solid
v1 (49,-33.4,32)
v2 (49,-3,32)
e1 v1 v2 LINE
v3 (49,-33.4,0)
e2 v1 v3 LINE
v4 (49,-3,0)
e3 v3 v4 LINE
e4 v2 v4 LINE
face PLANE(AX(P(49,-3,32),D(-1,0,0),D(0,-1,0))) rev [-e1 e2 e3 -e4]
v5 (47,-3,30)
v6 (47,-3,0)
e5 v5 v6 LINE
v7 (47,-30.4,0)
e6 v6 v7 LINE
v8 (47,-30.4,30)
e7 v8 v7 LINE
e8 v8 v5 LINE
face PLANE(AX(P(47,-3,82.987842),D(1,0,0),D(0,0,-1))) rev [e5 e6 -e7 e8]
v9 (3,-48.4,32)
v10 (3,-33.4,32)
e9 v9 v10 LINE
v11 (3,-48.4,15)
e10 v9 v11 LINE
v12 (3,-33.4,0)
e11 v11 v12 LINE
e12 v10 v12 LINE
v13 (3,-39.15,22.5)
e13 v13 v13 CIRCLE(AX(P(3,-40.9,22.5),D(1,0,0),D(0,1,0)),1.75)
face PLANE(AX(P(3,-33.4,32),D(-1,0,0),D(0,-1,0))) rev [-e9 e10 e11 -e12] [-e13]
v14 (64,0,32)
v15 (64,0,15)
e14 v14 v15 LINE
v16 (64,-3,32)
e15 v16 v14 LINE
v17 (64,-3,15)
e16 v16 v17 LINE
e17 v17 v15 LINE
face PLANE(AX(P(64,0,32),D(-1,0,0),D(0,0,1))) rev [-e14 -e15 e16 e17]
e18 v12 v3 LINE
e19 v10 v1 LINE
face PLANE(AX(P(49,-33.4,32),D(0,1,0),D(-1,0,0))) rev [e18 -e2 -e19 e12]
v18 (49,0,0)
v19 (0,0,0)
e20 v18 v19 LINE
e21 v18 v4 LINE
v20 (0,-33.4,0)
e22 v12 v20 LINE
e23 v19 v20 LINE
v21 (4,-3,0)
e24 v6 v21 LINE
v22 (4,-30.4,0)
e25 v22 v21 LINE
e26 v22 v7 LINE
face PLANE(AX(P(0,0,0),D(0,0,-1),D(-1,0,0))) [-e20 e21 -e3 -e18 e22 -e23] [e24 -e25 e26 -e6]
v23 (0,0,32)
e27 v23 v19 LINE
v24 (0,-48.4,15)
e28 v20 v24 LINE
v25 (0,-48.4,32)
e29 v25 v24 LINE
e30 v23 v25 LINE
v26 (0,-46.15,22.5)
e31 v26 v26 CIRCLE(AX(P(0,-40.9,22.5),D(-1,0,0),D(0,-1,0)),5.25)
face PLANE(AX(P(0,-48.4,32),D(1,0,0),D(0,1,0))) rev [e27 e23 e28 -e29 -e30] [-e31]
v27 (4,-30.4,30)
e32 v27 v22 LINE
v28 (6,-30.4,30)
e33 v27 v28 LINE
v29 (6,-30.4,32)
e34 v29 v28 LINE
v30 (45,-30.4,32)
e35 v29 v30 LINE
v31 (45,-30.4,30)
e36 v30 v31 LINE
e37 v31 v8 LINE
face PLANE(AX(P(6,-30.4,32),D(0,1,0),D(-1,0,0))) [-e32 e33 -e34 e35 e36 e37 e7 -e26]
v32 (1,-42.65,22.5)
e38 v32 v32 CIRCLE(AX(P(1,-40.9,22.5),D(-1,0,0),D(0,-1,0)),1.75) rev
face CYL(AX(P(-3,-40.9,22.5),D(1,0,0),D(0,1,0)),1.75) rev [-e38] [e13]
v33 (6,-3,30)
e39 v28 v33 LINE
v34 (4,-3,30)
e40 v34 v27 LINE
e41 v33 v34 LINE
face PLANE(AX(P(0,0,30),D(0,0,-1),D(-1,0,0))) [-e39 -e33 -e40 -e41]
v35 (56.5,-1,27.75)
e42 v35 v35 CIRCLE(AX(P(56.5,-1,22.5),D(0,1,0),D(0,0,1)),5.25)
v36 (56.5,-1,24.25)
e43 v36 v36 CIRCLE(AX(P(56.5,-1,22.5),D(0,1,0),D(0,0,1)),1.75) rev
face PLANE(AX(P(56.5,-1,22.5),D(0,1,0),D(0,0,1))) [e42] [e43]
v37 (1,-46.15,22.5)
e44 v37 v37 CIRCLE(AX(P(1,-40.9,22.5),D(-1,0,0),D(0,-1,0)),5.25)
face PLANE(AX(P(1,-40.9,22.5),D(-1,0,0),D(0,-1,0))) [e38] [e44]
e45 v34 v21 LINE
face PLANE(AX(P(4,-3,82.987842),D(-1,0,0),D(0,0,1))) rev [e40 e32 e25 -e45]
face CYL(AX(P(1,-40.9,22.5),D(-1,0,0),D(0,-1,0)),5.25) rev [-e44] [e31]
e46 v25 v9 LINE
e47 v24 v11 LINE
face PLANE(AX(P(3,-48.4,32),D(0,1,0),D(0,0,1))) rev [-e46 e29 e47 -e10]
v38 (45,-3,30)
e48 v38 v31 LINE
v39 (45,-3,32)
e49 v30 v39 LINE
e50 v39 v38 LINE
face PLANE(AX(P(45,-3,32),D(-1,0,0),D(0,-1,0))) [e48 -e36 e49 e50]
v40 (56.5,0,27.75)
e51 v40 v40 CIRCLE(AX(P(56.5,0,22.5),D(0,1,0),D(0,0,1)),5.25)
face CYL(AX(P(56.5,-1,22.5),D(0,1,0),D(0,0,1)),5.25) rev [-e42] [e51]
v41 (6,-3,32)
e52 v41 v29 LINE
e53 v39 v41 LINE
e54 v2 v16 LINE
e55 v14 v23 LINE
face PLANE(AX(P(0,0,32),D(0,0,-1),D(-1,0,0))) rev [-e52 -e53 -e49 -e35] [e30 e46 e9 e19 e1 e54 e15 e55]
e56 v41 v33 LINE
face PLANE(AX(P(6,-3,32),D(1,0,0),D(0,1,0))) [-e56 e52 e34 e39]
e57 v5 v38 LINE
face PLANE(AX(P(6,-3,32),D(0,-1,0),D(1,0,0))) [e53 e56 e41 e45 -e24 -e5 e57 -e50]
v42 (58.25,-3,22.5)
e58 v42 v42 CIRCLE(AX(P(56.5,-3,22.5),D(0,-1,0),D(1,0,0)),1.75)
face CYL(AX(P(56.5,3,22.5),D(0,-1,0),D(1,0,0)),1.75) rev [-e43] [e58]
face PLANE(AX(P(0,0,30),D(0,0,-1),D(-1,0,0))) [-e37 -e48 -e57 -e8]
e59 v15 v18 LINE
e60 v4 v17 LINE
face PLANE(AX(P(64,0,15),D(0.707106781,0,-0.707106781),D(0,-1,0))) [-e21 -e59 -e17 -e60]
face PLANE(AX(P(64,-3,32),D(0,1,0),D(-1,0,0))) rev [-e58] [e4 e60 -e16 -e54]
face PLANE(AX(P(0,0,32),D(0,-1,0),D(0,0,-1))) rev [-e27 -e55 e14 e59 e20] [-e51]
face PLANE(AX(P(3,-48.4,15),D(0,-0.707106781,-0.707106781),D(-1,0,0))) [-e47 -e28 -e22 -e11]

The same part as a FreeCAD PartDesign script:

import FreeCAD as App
import Part
import Sketcher


def edges_at(feature, points):
    """Names of the edges that pass closest to the given points."""
    edges = feature.Shape.Edges
    near = lambda p: min(range(len(edges)), key=lambda i: edges[i].distToShape(Part.Vertex(*p))[0])
    return sorted({f"Edge{near(p) + 1}" for p in points})

doc = App.newDocument("Part")
body = doc.addObject("PartDesign::Body", "Body")

sketch1 = body.newObject("Sketcher::SketchObject", "Sketch")
sketch1.AttachmentSupport = (doc.getObject("XY_Plane"), [""])
sketch1.MapMode = "FlatFace"
sketch1.addGeometry([
    Part.LineSegment(App.Vector(64, 0, 0), App.Vector(0, 0, 0)),
    Part.LineSegment(App.Vector(0, 0, 0), App.Vector(0, -48.4, 0)),
    Part.LineSegment(App.Vector(0, -48.4, 0), App.Vector(3, -48.4, 0)),
    Part.LineSegment(App.Vector(3, -48.4, 0), App.Vector(3, -33.4, 0)),
    Part.LineSegment(App.Vector(3, -33.4, 0), App.Vector(49, -33.4, 0)),
    Part.LineSegment(App.Vector(49, -33.4, 0), App.Vector(49, -3, 0)),
    Part.LineSegment(App.Vector(49, -3, 0), App.Vector(64, -3, 0)),
    Part.LineSegment(App.Vector(64, -3, 0), App.Vector(64, 0, 0)),
    Part.LineSegment(App.Vector(6, -30.4, 0), App.Vector(6, -3, 0)),
    Part.LineSegment(App.Vector(6, -3, 0), App.Vector(45, -3, 0)),
    Part.LineSegment(App.Vector(45, -3, 0), App.Vector(45, -30.4, 0)),
    Part.LineSegment(App.Vector(45, -30.4, 0), App.Vector(6, -30.4, 0)),
], False)
sketch1.addConstraint([
    Sketcher.Constraint("Coincident", 0, 2, 1, 1),
    Sketcher.Constraint("Coincident", 1, 2, 2, 1),
    Sketcher.Constraint("Coincident", 2, 2, 3, 1),
    Sketcher.Constraint("Coincident", 3, 2, 4, 1),
    Sketcher.Constraint("Coincident", 4, 2, 5, 1),
    Sketcher.Constraint("Coincident", 5, 2, 6, 1),
    Sketcher.Constraint("Coincident", 6, 2, 7, 1),
    Sketcher.Constraint("Coincident", 7, 2, 0, 1),
    Sketcher.Constraint("Coincident", 8, 2, 9, 1),
    Sketcher.Constraint("Coincident", 9, 2, 10, 1),
    Sketcher.Constraint("Coincident", 10, 2, 11, 1),
    Sketcher.Constraint("Coincident", 11, 2, 8, 1),
    Sketcher.Constraint("Horizontal", 0),
    Sketcher.Constraint("Vertical", 1),
    Sketcher.Constraint("Horizontal", 2),
    Sketcher.Constraint("Vertical", 3),
    Sketcher.Constraint("Horizontal", 4),
    Sketcher.Constraint("Vertical", 5),
    Sketcher.Constraint("Horizontal", 6),
    Sketcher.Constraint("Vertical", 7),
    Sketcher.Constraint("Vertical", 8),
    Sketcher.Constraint("Horizontal", 9),
    Sketcher.Constraint("Vertical", 10),
    Sketcher.Constraint("Horizontal", 11),
    Sketcher.Constraint("Coincident", 0, 2, -1, 1),
    Sketcher.Constraint("Horizontal", 6, 2, 8, 2),
    Sketcher.Constraint("Equal", 6, 3),
    Sketcher.Constraint("Equal", 2, 7),
    Sketcher.Constraint("DistanceX", 0, 2, 0, 1, 64.0),
    Sketcher.Constraint("DistanceX", 2, 1, 2, 2, 3.0),
    Sketcher.Constraint("DistanceX", 4, 1, 4, 2, 46.0),
    Sketcher.Constraint("DistanceX", 9, 1, 9, 2, 39.0),
    Sketcher.Constraint("DistanceY", 1, 2, 1, 1, 48.4),
    Sketcher.Constraint("DistanceY", 8, 1, 8, 2, 27.4),
    Sketcher.Constraint("DistanceX", -1, 1, 8, 2, 6.0),
])
pad1 = body.newObject("PartDesign::Pad", "Pad")
pad1.Profile = sketch1
pad1.Length = 32

sketch2 = body.newObject("Sketcher::SketchObject", "Sketch001")
sketch2.AttachmentSupport = (doc.getObject("XY_Plane"), [""])
sketch2.MapMode = "FlatFace"
sketch2.addGeometry([
    Part.LineSegment(App.Vector(47, -3, 0), App.Vector(47, -30, 0)),
    Part.LineSegment(App.Vector(47, -30, 0), App.Vector(4, -30, 0)),
    Part.LineSegment(App.Vector(4, -30, 0), App.Vector(4, -3, 0)),
    Part.LineSegment(App.Vector(4, -3, 0), App.Vector(47, -3, 0)),
], False)
sketch2.addConstraint([
    Sketcher.Constraint("Coincident", 0, 2, 1, 1),
    Sketcher.Constraint("Coincident", 1, 2, 2, 1),
    Sketcher.Constraint("Coincident", 2, 2, 3, 1),
    Sketcher.Constraint("Coincident", 3, 2, 0, 1),
    Sketcher.Constraint("Vertical", 0),
    Sketcher.Constraint("Horizontal", 1),
    Sketcher.Constraint("Vertical", 2),
    Sketcher.Constraint("Horizontal", 3),
    Sketcher.Constraint("DistanceX", 1, 2, 1, 1, 43.0),
    Sketcher.Constraint("DistanceY", 0, 2, 0, 1, 27.4),
    Sketcher.Constraint("DistanceX", -1, 1, 0, 2, 47.0),
    Sketcher.Constraint("DistanceY", 2, 2, -1, 1, 3.0),
])
pocket1 = body.newObject("PartDesign::Pocket", "Pocket")
pocket1.Profile = sketch2
pocket1.Length = 30
pocket1.Reversed = True

sketch3 = body.newObject("Sketcher::SketchObject", "Sketch002")
sketch3.AttachmentSupport = (doc.getObject("XZ_Plane"), [""])
sketch3.MapMode = "FlatFace"
sketch3.AttachmentOffset = App.Placement(App.Vector(0, 0, 3), App.Rotation())
sketch3.addGeometry(Part.Circle(App.Vector(56.5, 22.5, 0), App.Vector(0, 0, 1), 1.8), False)
sketch3.addConstraint([
    Sketcher.Constraint("Diameter", 0, 3.5),
    Sketcher.Constraint("DistanceX", -1, 1, 0, 3, 56.5),
    Sketcher.Constraint("DistanceY", -1, 1, 0, 3, 22.5),
])
pocket2 = body.newObject("PartDesign::Pocket", "Pocket001")
pocket2.Profile = sketch3
pocket2.Length = 6

sketch4 = body.newObject("Sketcher::SketchObject", "Sketch003")
sketch4.AttachmentSupport = (doc.getObject("YZ_Plane"), [""])
sketch4.MapMode = "FlatFace"
sketch4.AttachmentOffset = App.Placement(App.Vector(0, 0, 3), App.Rotation())
sketch4.addGeometry(Part.Circle(App.Vector(-40.9, 22.5, 0), App.Vector(0, 0, 1), 1.8), False)
sketch4.addConstraint([
    Sketcher.Constraint("Diameter", 0, 3.5),
    Sketcher.Constraint("DistanceX", 0, 3, -1, 1, 40.9),
    Sketcher.Constraint("DistanceY", -1, 1, 0, 3, 22.5),
])
pocket3 = body.newObject("PartDesign::Pocket", "Pocket002")
pocket3.Profile = sketch4
pocket3.Length = 6
doc.recompute()

chamfer = body.newObject("PartDesign::Chamfer", "Chamfer")
chamfer.Base = (pocket3, edges_at(pocket3, [(1.5, -48.4, 0), (64, -1.5, 0)]))
chamfer.Size = 15

sketch5 = body.newObject("Sketcher::SketchObject", "Sketch004")
sketch5.AttachmentSupport = (doc.getObject("XZ_Plane"), [""])
sketch5.MapMode = "FlatFace"
sketch5.addGeometry(Part.Circle(App.Vector(56, 22, 0), App.Vector(0, 0, 1), 5), False)
sketch5.addConstraint([
    Sketcher.Constraint("Diameter", 0, 10.5),
    Sketcher.Constraint("DistanceX", -1, 1, 0, 3, 56.5),
    Sketcher.Constraint("DistanceY", -1, 1, 0, 3, 22.5),
])
pocket4 = body.newObject("PartDesign::Pocket", "Pocket003")
pocket4.Profile = sketch5
pocket4.Length = 1
pocket4.Reversed = True

sketch6 = body.newObject("Sketcher::SketchObject", "Sketch005")
sketch6.AttachmentSupport = (doc.getObject("YZ_Plane"), [""])
sketch6.MapMode = "FlatFace"
sketch6.addGeometry(Part.Circle(App.Vector(-41, 22, 0), App.Vector(0, 0, 1), 5), False)
sketch6.addConstraint([
    Sketcher.Constraint("Diameter", 0, 10.5),
    Sketcher.Constraint("DistanceX", 0, 3, -1, 1, 40.9),
    Sketcher.Constraint("DistanceY", -1, 1, 0, 3, 22.5),
])
pocket5 = body.newObject("PartDesign::Pocket", "Pocket004")
pocket5.Profile = sketch6
pocket5.Length = 1
pocket5.Reversed = True

doc.recompute()
